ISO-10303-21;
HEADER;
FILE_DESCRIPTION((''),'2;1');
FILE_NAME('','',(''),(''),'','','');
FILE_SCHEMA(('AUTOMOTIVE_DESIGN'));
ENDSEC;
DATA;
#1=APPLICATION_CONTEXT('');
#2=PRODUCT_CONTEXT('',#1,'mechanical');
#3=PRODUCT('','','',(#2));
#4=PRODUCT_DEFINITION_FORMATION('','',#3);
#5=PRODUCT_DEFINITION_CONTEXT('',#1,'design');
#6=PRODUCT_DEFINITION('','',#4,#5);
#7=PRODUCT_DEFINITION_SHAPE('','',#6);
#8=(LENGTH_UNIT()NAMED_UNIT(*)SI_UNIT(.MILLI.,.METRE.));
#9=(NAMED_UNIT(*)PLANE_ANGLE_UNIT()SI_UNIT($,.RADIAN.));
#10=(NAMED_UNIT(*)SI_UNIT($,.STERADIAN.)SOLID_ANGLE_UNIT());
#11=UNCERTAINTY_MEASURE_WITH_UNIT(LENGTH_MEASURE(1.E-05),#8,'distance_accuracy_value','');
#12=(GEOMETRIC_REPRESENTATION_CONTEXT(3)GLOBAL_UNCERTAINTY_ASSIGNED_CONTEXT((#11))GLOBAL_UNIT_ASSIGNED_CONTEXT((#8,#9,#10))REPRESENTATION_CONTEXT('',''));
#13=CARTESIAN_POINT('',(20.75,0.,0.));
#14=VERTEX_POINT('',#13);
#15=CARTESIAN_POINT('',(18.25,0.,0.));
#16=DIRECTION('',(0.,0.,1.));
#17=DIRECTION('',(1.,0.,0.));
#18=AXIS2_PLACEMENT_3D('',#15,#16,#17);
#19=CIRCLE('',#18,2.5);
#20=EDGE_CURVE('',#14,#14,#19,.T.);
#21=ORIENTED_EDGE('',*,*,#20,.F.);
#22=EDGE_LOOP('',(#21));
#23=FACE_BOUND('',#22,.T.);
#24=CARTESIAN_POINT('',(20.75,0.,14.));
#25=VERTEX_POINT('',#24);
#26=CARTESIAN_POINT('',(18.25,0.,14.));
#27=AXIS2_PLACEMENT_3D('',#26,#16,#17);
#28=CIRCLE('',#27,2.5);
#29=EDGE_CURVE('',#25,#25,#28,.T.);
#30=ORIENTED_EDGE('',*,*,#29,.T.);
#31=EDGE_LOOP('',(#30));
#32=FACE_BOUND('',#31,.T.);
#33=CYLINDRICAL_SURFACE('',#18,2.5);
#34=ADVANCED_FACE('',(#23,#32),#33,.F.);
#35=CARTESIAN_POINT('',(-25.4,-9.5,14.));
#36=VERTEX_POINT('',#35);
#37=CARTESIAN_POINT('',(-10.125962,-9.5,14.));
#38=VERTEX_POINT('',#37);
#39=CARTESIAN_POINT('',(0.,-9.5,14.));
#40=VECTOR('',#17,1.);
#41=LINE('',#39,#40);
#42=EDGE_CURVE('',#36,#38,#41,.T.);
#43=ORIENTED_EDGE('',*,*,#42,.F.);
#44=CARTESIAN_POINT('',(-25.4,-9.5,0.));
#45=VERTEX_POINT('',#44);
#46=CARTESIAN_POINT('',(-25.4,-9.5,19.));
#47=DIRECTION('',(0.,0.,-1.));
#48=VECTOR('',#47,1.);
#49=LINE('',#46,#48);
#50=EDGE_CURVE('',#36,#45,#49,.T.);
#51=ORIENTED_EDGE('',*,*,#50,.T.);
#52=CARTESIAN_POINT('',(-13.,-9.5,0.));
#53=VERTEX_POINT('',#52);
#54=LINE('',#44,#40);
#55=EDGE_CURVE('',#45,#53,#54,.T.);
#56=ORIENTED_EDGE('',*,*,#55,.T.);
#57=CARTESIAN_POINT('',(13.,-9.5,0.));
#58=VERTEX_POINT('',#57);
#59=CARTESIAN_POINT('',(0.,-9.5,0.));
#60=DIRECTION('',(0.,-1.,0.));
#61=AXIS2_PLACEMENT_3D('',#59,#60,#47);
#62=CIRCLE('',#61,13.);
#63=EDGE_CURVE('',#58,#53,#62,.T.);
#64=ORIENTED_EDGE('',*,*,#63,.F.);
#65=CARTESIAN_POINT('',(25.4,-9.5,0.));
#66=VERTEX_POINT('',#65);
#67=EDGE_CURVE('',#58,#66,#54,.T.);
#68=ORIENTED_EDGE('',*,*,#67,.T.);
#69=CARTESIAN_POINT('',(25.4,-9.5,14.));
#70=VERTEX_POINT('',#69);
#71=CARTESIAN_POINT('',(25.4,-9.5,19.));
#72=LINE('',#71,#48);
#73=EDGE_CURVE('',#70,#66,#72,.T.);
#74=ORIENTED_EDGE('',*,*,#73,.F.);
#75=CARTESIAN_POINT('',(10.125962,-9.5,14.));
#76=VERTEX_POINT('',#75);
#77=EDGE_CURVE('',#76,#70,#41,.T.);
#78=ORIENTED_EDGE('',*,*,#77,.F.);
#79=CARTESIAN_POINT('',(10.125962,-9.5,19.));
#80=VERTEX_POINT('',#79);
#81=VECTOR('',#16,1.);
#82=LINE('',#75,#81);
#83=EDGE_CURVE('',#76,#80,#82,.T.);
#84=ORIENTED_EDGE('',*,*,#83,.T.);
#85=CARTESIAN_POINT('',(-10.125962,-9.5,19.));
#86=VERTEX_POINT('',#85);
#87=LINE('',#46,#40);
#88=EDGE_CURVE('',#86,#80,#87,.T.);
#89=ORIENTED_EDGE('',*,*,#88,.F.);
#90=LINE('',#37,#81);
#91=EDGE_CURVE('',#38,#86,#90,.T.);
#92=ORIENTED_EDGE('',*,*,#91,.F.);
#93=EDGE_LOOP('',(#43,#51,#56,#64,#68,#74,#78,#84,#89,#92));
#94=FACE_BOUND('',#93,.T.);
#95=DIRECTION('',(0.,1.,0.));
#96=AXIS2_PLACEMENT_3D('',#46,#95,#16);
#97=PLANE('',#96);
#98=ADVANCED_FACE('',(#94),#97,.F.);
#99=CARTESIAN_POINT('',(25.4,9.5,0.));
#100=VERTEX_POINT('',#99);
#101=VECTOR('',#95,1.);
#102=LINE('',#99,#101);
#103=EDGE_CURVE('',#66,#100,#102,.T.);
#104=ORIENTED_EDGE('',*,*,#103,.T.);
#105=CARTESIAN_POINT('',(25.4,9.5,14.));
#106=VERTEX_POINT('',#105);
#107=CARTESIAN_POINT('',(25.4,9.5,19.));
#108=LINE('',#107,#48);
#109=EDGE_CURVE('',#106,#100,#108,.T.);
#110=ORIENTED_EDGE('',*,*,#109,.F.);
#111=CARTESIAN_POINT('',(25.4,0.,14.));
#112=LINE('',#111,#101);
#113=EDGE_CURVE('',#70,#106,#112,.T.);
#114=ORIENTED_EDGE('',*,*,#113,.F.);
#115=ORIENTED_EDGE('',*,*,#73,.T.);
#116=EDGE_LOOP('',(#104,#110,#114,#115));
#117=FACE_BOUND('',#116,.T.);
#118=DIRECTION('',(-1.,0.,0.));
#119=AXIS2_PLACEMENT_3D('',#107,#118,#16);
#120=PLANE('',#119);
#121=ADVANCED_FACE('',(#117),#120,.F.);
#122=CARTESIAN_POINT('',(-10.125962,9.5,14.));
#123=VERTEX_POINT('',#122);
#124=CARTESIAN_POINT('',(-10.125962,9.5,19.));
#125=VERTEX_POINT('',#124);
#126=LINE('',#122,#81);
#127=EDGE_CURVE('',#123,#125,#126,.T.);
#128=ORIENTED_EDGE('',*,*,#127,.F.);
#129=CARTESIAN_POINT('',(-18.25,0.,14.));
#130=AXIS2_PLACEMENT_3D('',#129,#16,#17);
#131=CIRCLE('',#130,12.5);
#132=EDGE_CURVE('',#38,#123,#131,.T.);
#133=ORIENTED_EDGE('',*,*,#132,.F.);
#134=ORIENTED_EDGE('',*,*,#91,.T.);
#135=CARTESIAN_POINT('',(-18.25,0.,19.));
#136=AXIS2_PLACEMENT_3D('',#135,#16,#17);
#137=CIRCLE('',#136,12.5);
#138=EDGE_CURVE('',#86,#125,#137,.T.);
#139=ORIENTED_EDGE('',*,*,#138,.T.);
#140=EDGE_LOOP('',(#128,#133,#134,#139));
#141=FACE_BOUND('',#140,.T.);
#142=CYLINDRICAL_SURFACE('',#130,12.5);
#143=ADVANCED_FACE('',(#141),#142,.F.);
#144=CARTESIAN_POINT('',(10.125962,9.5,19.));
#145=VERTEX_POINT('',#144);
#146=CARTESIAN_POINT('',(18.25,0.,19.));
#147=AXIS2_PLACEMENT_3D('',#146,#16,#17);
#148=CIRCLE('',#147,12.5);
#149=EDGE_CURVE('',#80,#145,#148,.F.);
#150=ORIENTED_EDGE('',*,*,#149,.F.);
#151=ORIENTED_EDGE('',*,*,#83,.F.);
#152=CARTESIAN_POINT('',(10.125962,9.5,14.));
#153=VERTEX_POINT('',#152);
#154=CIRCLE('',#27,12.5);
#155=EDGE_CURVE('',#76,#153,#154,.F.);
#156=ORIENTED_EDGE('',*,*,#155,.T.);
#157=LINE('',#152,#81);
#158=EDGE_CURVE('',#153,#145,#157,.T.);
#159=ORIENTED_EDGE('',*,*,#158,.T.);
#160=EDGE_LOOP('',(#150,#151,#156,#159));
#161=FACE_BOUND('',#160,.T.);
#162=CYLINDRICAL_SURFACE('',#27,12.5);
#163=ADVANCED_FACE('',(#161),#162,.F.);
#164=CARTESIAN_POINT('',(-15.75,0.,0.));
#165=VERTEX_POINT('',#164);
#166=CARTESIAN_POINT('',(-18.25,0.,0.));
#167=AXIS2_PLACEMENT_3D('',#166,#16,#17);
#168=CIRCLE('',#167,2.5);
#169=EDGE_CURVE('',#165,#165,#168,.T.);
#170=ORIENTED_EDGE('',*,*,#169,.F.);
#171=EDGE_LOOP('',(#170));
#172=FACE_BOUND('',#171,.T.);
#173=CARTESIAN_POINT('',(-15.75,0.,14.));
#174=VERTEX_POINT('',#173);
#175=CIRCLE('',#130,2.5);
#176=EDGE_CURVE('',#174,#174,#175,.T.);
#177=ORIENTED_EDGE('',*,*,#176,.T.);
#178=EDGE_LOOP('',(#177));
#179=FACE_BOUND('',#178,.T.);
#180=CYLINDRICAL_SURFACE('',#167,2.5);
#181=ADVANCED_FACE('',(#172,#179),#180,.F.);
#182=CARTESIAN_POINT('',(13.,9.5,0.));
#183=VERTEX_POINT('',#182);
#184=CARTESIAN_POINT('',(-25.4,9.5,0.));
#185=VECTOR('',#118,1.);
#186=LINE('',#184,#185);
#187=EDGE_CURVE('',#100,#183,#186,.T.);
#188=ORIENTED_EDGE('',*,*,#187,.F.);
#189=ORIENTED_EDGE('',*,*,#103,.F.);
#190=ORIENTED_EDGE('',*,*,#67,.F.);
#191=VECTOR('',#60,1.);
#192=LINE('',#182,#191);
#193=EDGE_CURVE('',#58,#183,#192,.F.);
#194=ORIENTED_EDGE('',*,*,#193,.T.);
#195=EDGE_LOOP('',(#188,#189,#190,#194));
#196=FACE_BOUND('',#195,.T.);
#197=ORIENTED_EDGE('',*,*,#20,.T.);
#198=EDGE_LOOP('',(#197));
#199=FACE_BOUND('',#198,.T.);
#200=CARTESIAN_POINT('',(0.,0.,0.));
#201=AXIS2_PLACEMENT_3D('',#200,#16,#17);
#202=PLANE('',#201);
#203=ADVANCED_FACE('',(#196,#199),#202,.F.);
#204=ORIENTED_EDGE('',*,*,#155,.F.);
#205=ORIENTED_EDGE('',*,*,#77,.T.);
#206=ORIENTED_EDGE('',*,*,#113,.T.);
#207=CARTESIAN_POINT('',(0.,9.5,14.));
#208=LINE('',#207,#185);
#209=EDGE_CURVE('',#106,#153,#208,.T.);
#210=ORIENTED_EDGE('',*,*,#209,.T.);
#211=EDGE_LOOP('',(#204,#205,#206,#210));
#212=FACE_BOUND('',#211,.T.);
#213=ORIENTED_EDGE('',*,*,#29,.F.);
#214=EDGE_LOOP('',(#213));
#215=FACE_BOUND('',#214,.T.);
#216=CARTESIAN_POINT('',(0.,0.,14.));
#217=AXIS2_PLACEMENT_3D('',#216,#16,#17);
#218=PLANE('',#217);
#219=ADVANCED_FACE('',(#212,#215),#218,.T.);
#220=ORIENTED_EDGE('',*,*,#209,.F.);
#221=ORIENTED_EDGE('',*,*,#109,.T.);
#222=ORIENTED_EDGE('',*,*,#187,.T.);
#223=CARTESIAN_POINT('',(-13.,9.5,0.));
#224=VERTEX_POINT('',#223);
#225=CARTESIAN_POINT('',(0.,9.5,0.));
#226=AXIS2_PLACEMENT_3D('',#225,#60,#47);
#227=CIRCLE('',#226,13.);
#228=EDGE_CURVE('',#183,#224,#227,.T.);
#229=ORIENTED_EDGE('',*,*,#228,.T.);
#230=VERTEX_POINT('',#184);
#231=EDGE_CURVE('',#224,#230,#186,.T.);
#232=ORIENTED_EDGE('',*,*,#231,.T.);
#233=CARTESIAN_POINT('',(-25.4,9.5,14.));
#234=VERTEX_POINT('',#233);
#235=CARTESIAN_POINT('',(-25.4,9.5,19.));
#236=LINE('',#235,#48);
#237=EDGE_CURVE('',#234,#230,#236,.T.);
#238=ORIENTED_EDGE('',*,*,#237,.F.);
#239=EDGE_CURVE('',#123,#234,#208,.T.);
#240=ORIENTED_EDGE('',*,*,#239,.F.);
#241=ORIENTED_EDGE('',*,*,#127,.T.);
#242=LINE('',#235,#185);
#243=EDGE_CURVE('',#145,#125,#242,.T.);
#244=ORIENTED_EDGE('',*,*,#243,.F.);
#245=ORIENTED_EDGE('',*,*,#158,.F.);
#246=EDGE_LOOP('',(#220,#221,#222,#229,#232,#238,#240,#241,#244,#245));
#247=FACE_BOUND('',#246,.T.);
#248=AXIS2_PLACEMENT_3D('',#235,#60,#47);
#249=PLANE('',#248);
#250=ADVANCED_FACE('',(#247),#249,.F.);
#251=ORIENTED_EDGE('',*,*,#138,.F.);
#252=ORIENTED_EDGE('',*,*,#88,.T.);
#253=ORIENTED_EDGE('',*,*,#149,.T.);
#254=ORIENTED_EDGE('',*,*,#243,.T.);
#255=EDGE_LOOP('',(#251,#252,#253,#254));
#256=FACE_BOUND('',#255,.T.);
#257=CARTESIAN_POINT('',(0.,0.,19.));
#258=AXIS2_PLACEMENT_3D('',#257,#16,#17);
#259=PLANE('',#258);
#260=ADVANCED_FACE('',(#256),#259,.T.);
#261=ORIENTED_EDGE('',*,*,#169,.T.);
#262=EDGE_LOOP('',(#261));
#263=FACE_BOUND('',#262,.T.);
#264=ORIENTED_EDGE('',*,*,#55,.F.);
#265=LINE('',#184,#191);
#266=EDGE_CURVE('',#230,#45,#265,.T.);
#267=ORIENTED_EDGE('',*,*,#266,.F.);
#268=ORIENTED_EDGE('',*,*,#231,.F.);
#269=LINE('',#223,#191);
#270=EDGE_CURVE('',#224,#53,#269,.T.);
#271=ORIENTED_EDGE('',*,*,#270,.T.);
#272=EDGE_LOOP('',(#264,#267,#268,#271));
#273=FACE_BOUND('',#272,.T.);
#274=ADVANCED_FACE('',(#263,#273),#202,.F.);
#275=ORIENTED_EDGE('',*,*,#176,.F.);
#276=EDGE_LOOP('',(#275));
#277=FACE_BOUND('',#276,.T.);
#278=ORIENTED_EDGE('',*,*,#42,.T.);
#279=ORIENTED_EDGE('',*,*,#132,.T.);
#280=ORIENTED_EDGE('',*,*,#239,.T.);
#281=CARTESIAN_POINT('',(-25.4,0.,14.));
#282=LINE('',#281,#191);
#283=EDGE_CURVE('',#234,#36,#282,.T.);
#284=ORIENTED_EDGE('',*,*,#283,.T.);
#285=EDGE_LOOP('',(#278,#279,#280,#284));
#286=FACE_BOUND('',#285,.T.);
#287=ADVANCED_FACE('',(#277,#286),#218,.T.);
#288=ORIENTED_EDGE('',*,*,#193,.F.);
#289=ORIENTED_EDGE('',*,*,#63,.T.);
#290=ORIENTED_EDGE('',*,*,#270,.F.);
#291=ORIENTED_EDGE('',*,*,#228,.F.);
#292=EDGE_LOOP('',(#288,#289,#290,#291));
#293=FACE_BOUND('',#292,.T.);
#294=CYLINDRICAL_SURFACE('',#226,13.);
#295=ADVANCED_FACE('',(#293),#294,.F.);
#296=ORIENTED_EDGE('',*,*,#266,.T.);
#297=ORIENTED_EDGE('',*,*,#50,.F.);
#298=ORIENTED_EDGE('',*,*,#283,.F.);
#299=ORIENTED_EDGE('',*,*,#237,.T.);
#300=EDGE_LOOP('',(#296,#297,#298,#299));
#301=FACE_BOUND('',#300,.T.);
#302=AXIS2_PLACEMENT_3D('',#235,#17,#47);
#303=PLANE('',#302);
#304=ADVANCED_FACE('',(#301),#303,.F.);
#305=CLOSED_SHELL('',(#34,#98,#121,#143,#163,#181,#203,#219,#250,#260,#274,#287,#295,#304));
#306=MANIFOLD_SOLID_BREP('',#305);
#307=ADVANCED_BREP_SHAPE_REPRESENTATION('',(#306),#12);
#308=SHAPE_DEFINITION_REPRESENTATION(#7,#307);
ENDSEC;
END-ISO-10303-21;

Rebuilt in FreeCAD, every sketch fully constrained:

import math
import FreeCAD as App
import Part
import Sketcher
from FreeCAD import Vector

doc = App.newDocument("Part")
params = doc.addObject("Spreadsheet::Sheet", "Params")
for row, (alias, value) in enumerate([
    ("sketch1_height", "19 mm"),
    ("sketch1_width", "50.8 mm"),
    ("pad1_length", "19 mm"),
    ("sketch2_diameter", "26 mm"),
    ("sketch3_diameter", "5 mm"),
    ("sketch3_radius", "12.5 mm"),
    ("sketch3_height", "19 mm"),
    ("pocket2_length", "5 mm"),
    ("sketch4_diameter", "5 mm"),
], start=1):
    params.set(f"A{row}", alias)
    params.set(f"B{row}", "=" + value)
    params.setAlias(f"B{row}", alias)

body = doc.addObject("PartDesign::Body", "Body")

sketch1 = body.newObject("Sketcher::SketchObject", "Sketch")
sketch1.AttachmentSupport = (doc.getObject("XY_Plane"), [""])
sketch1.MapMode = "FlatFace"
sketch1.addGeometry([
    Part.LineSegment(Vector(-25.4, 9.5, 0), Vector(-25.4, -9.5, 0)),
    Part.LineSegment(Vector(-25.4, -9.5, 0), Vector(25.4, -9.5, 0)),
    Part.LineSegment(Vector(25.4, -9.5, 0), Vector(25.4, 9.5, 0)),
    Part.LineSegment(Vector(25.4, 9.5, 0), Vector(-25.4, 9.5, 0)),
], False)
sketch1.addConstraint([
    Sketcher.Constraint("Coincident", 0, 2, 1, 1),
    Sketcher.Constraint("Coincident", 1, 2, 2, 1),
    Sketcher.Constraint("Coincident", 2, 2, 3, 1),
    Sketcher.Constraint("Coincident", 3, 2, 0, 1),
    Sketcher.Constraint("Vertical", 0),
    Sketcher.Constraint("Horizontal", 1),
    Sketcher.Constraint("Vertical", 2),
    Sketcher.Constraint("Horizontal", 3),
    Sketcher.Constraint("Symmetric", 0, 2, 2, 2, -1, 1),
    Sketcher.Constraint("DistanceY", 0, 2, 0, 1, 19.0),
    Sketcher.Constraint("DistanceX", 1, 1, 1, 2, 50.8),
])
sketch1.setExpression("Constraints[9]", "Params.sketch1_height")
sketch1.setExpression("Constraints[10]", "Params.sketch1_width")
pad1 = body.newObject("PartDesign::Pad", "Pad")
pad1.Profile = sketch1
pad1.setExpression("Length", "Params.pad1_length")

sketch2 = body.newObject("Sketcher::SketchObject", "Sketch001")
sketch2.AttachmentSupport = (doc.getObject("XZ_Plane"), [""])
sketch2.MapMode = "FlatFace"
sketch2.AttachmentOffset = App.Placement(Vector(0, 0, 9.5), App.Rotation())
sketch2.addGeometry(Part.Circle(Vector(0, 0, 0), Vector(0, 0, 1), 13), False)
sketch2.addConstraint([
    Sketcher.Constraint("Coincident", 0, 3, -1, 1),
    Sketcher.Constraint("Diameter", 0, 26.0),
])
sketch2.setExpression("Constraints[1]", "Params.sketch2_diameter")
pocket1 = body.newObject("PartDesign::Pocket", "Pocket")
pocket1.Profile = sketch2
pocket1.Type = "ThroughAll"

sketch3 = body.newObject("Sketcher::SketchObject", "Sketch002")
sketch3.AttachmentSupport = (doc.getObject("XY_Plane"), [""])
sketch3.MapMode = "FlatFace"
sketch3.AttachmentOffset = App.Placement(Vector(0, 0, 19), App.Rotation())
sketch3.addGeometry([
    Part.ArcOfCircle(Part.Circle(Vector(-18.25, 0, 0), Vector(0, 0, 1), 12.5), math.radians(-49.464198), math.radians(0)),
    Part.ArcOfCircle(Part.Circle(Vector(-18.25, 0, 0), Vector(0, 0, 1), 12.5), math.radians(0), math.radians(49.464198)),
    Part.LineSegment(Vector(-10.125962, 9.5, 0), Vector(-25.4, 9.5, 0)),
    Part.LineSegment(Vector(-25.4, 9.5, 0), Vector(-25.4, -9.5, 0)),
    Part.LineSegment(Vector(-25.4, -9.5, 0), Vector(-10.125962, -9.5, 0)),
    Part.Circle(Vector(-18.25, 0, 0), Vector(0, 0, 1), 2.5),
    Part.LineSegment(Vector(25.4, 9.5, 0), Vector(10.125962, 9.5, 0)),
    Part.ArcOfCircle(Part.Circle(Vector(18.25, 0, 0), Vector(0, 0, 1), 12.5), math.radians(130.535802), math.radians(229.464198)),
    Part.LineSegment(Vector(10.125962, -9.5, 0), Vector(25.4, -9.5, 0)),
    Part.LineSegment(Vector(25.4, -9.5, 0), Vector(25.4, 9.5, 0)),
    Part.Circle(Vector(18.25, 0, 0), Vector(0, 0, 1), 2.5),
], False)
sketch3.addConstraint([
    Sketcher.Constraint("Tangent", 0, 2, 1, 1),
    Sketcher.Constraint("Coincident", 1, 2, 2, 1),
    Sketcher.Constraint("Coincident", 2, 2, 3, 1),
    Sketcher.Constraint("Coincident", 3, 2, 4, 1),
    Sketcher.Constraint("Coincident", 4, 2, 0, 1),
    Sketcher.Constraint("Coincident", 6, 2, 7, 1),
    Sketcher.Constraint("Coincident", 7, 2, 8, 1),
    Sketcher.Constraint("Coincident", 8, 2, 9, 1),
    Sketcher.Constraint("Coincident", 9, 2, 6, 1),
    Sketcher.Constraint("Horizontal", 2),
    Sketcher.Constraint("Vertical", 3),
    Sketcher.Constraint("Horizontal", 4),
    Sketcher.Constraint("Horizontal", 6),
    Sketcher.Constraint("Horizontal", 8),
    Sketcher.Constraint("Vertical", 9),
    Sketcher.Constraint("Coincident", 5, 3, 0, 3),
    Sketcher.Constraint("Coincident", 10, 3, 7, 3),
    Sketcher.Constraint("Equal", 0, 1),
    Sketcher.Constraint("Equal", 1, 7),
    Sketcher.Constraint("Equal", 5, 10),
    Sketcher.Constraint("Symmetric", 0, 3, 7, 3, -1, 1),
    Sketcher.Constraint("Symmetric", 2, 2, 8, 2, -1, 1),
    Sketcher.Constraint("Symmetric", 1, 2, 6, 2, -2),
    Sketcher.Constraint("PointOnObject", 0, 2, -1),
    Sketcher.Constraint("Horizontal", 4, 2, 7, 2),
    Sketcher.Constraint("Diameter", 5, 5.0),
    Sketcher.Constraint("Radius", 0, 12.5),
    Sketcher.Constraint("DistanceY", 3, 2, 3, 1, 19.0),
    Sketcher.Constraint("DistanceX", 0, 2, 10, 3, 24.0),
    Sketcher.Constraint("DistanceX", 2, 2, -1, 1, 25.4),
])
sketch3.setExpression("Constraints[25]", "Params.sketch3_diameter")
sketch3.setExpression("Constraints[26]", "Params.sketch3_radius")
sketch3.setExpression("Constraints[27]", "Params.sketch3_height")
pocket2 = body.newObject("PartDesign::Pocket", "Pocket001")
pocket2.Profile = sketch3
pocket2.setExpression("Length", "Params.pocket2_length")

sketch4 = body.newObject("Sketcher::SketchObject", "Sketch003")
sketch4.AttachmentSupport = (doc.getObject("XY_Plane"), [""])
sketch4.MapMode = "FlatFace"
sketch4.AttachmentOffset = App.Placement(Vector(0, 0, 19), App.Rotation())
sketch4.addGeometry([
    Part.Circle(Vector(18.25, 0, 0), Vector(0, 0, 1), 2.5),
    Part.Circle(Vector(-18.25, 0, 0), Vector(0, 0, 1), 2.5),
], False)
sketch4.addConstraint([
    Sketcher.Constraint("Equal", 0, 1),
    Sketcher.Constraint("Symmetric", 0, 3, 1, 3, -1, 1),
    Sketcher.Constraint("PointOnObject", 0, 3, -1),
    Sketcher.Constraint("Diameter", 0, 5.0),
    Sketcher.Constraint("DistanceX", 1, 3, 0, 3, 36.5),
])
sketch4.setExpression("Constraints[3]", "Params.sketch4_diameter")
pocket3 = body.newObject("PartDesign::Pocket", "Pocket002")
pocket3.Profile = sketch4
pocket3.Type = "ThroughAll"
pocket3.Midplane = True

doc.recompute()
